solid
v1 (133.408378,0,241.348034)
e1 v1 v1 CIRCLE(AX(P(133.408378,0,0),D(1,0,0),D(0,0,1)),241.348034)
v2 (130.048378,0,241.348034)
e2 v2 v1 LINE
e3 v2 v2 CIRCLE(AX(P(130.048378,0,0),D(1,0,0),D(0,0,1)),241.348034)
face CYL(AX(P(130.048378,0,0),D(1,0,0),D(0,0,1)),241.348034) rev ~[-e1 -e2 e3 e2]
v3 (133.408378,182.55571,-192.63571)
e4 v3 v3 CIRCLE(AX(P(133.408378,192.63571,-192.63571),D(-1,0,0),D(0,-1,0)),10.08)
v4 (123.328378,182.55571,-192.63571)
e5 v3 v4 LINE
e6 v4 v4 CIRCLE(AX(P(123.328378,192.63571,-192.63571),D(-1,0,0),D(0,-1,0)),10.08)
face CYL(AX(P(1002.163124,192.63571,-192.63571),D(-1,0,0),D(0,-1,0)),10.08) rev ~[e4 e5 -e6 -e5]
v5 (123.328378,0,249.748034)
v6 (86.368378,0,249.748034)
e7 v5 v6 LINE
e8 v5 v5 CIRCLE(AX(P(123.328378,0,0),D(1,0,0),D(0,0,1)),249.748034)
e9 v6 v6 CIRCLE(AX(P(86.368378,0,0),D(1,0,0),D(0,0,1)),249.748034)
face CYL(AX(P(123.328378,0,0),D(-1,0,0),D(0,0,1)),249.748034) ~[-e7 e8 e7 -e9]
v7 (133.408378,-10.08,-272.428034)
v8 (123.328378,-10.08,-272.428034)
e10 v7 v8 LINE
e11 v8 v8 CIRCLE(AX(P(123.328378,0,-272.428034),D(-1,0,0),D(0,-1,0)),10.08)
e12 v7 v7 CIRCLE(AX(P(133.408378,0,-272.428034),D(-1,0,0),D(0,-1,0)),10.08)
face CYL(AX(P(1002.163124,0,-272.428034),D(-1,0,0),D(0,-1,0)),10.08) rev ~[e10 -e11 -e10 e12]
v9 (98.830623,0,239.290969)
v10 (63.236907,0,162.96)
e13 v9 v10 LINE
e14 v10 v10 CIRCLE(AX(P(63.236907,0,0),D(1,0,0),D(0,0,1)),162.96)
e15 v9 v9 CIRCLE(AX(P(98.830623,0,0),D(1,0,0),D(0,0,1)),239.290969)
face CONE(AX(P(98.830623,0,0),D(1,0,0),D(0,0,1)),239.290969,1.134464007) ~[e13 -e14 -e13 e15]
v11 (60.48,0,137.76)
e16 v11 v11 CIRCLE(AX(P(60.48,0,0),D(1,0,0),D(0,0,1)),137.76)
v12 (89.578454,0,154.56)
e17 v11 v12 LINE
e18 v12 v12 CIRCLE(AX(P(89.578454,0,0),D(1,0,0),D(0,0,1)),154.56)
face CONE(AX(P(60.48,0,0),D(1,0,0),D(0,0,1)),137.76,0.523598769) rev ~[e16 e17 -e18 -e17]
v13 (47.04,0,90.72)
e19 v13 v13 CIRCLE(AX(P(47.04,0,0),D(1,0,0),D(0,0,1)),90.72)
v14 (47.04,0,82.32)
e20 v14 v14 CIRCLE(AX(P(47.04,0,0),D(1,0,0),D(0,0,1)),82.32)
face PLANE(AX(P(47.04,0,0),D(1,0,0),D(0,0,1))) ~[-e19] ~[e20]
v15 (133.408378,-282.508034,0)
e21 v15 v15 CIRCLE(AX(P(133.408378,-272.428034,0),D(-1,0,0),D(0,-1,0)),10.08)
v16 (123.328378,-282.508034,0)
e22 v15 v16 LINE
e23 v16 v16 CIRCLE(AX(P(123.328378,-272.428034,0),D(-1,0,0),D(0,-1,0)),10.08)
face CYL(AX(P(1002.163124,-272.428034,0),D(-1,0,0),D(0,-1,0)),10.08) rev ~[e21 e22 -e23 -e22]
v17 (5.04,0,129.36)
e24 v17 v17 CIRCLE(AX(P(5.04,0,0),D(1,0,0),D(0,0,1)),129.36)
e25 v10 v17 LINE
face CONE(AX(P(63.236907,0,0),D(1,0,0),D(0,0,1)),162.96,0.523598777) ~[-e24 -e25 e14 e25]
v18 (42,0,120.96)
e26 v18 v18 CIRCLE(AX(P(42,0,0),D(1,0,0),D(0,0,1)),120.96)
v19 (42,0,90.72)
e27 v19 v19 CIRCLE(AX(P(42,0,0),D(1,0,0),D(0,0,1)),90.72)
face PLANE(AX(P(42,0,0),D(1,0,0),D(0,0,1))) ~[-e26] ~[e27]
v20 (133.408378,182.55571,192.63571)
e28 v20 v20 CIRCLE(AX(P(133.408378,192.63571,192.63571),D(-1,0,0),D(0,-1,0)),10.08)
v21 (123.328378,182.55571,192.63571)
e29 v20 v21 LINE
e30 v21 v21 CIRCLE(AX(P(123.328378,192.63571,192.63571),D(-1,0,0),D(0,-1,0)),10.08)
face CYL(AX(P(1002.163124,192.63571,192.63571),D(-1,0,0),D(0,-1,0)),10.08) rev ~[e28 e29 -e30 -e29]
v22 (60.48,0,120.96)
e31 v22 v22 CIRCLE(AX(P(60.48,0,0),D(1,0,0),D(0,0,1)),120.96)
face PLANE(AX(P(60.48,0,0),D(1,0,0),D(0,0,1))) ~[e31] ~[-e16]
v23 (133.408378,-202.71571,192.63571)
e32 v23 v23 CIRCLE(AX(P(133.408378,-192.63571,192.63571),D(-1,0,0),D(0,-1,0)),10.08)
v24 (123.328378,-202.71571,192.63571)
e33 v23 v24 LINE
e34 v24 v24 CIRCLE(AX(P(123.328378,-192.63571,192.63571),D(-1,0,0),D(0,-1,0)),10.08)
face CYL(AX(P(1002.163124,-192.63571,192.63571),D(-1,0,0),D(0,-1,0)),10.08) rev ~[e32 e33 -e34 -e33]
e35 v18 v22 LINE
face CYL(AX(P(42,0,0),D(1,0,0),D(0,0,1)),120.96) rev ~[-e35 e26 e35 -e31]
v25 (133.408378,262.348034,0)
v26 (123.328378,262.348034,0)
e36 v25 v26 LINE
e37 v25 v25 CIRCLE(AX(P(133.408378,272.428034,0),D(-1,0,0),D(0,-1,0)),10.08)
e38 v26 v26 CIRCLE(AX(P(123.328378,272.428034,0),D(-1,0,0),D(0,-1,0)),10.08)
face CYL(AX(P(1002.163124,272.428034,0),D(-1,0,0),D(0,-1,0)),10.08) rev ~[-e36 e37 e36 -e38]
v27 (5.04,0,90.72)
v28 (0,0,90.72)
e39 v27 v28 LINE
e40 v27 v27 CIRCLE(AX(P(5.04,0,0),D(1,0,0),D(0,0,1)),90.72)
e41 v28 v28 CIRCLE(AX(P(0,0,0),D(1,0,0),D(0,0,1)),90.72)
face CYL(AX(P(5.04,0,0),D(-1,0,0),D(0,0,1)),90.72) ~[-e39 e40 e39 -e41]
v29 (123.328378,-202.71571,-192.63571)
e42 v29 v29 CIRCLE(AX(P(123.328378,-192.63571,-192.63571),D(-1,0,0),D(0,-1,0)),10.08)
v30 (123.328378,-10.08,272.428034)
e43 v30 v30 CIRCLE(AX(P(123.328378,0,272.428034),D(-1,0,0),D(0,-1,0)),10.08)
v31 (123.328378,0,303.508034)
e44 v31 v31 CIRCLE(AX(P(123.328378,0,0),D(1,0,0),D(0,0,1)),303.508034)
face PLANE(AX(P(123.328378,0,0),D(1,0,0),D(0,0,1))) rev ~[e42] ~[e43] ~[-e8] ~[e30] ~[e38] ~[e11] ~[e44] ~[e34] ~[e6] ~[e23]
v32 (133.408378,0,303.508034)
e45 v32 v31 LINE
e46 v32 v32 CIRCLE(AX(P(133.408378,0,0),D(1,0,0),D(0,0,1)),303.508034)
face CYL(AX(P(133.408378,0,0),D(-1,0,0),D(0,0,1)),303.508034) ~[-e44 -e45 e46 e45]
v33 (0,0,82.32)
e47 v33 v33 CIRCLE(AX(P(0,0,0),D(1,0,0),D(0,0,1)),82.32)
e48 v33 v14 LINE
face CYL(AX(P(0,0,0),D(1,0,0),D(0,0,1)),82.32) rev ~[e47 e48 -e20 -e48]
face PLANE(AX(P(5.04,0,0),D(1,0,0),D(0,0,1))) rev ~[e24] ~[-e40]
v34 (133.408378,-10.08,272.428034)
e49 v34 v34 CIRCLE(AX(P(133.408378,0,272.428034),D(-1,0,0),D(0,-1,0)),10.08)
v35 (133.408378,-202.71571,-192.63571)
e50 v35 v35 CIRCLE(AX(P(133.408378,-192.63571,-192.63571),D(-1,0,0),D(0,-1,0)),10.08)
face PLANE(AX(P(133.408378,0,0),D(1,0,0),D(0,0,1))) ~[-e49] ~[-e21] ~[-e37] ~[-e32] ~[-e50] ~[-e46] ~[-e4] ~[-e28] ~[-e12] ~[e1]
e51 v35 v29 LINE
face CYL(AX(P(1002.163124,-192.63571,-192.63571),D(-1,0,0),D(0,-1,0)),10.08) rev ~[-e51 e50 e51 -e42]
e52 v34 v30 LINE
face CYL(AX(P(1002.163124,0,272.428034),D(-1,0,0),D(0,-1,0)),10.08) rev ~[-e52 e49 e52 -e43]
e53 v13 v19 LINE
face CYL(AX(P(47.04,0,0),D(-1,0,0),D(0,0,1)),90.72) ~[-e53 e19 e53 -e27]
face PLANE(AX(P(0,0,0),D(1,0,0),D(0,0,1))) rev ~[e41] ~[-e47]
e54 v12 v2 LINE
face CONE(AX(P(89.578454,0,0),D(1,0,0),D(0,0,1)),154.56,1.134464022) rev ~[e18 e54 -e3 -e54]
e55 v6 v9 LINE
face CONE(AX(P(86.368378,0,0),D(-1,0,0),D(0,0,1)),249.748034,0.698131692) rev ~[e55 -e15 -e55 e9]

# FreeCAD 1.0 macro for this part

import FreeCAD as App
import Part
import Sketcher
Q = App.Units.Quantity


def add_polygon(sketch, points):
    """Adds a closed chain of lines whose ends are joined by coincident constraints."""
    first, n = sketch.GeometryCount, len(points)
    for a, b in zip(points, points[1:] + points[:1]):
        sketch.addGeometry(Part.LineSegment(App.Vector(*a, 0), App.Vector(*b, 0)), False)
    for i in range(n):
        sketch.addConstraint(Sketcher.Constraint("Coincident", first + i, 2, first + (i + 1) % n, 1))

doc = App.newDocument("Part")
body = doc.addObject("PartDesign::Body", "Body")

# Sketch on XZ plane
sketch1 = doc.addObject("Sketcher::SketchObject", "Sketch")
body.addObject(sketch1)
sketch1.AttachmentSupport = (doc.XZ_Plane, [""])
sketch1.MapMode = "FlatFace"
add_polygon(sketch1, [(0, 90.7), (0, 82.3), (47, 82.3), (47, 90.7), (42, 90.7), (42, 121), (60.5, 121), (60.5, 137.8), (89.6, 154.6), (130, 241.3), (133.4, 241.3), (133.4, 303.5), (123.3, 303.5), (123.3, 249.7), (86.4, 249.7), (98.8, 239.3), (63.2, 163), (5, 129.4), (5, 90.7)])  # lines 0-18
sketch1.addConstraint(Sketcher.Constraint("Vertical", 0))
sketch1.addConstraint(Sketcher.Constraint("Horizontal", 1))
sketch1.addConstraint(Sketcher.Constraint("Vertical", 2))
sketch1.addConstraint(Sketcher.Constraint("Horizontal", 3))
sketch1.addConstraint(Sketcher.Constraint("Vertical", 4))
sketch1.addConstraint(Sketcher.Constraint("Horizontal", 5))
sketch1.addConstraint(Sketcher.Constraint("Vertical", 6))
sketch1.addConstraint(Sketcher.Constraint("Horizontal", 9))
sketch1.addConstraint(Sketcher.Constraint("Vertical", 10))
sketch1.addConstraint(Sketcher.Constraint("Horizontal", 11))
sketch1.addConstraint(Sketcher.Constraint("Vertical", 12))
sketch1.addConstraint(Sketcher.Constraint("Horizontal", 13))
sketch1.addConstraint(Sketcher.Constraint("Vertical", 17))
sketch1.addConstraint(Sketcher.Constraint("Horizontal", 18))
sketch1.addConstraint(Sketcher.Constraint("PointOnObject", 0, 2, -2))
sketch1.addConstraint(Sketcher.Constraint("Parallel", 8, 15))
sketch1.addConstraint(Sketcher.Constraint("Parallel", 7, 16))
sketch1.addConstraint(Sketcher.Constraint("Horizontal", 3, 2, 17, 2))
sketch1.addConstraint(Sketcher.Constraint("Equal", 3, 18))
sketch1.addConstraint(Sketcher.Constraint("Angle", 7, Q("30 deg")))
sketch1.addConstraint(Sketcher.Constraint("Angle", 8, Q("65 deg")))
sketch1.addConstraint(Sketcher.Constraint("Angle", 14, Q("-40 deg")))
sketch1.addConstraint(Sketcher.Constraint("DistanceY", 0, 2, 0, 1, Q("8.4 mm")))
sketch1.addConstraint(Sketcher.Constraint("DistanceY", 6, 1, 6, 2, Q("16.8 mm")))
sketch1.addConstraint(Sketcher.Constraint("DistanceX", -1, 1, 3, 2, Q("42 mm")))
sketch1.addConstraint(Sketcher.Constraint("DistanceY", 5, 2, 15, 2, Q("42 mm")))
sketch1.addConstraint(Sketcher.Constraint("Distance", 7, Q("33.6 mm")))
sketch1.addConstraint(Sketcher.Constraint("Distance", 16, Q("67.2 mm")))
sketch1.addConstraint(Sketcher.Constraint("DistanceX", 1, 1, 1, 2, Q("47.04 mm")))
sketch1.addConstraint(Sketcher.Constraint("DistanceX", 5, 1, 5, 2, Q("18.48 mm")))
sketch1.addConstraint(Sketcher.Constraint("DistanceX", 9, 1, 9, 2, Q("3.36 mm")))
sketch1.addConstraint(Sketcher.Constraint("DistanceX", 11, 2, 11, 1, Q("10.08 mm")))
sketch1.addConstraint(Sketcher.Constraint("DistanceX", 13, 2, 13, 1, Q("36.96 mm")))
sketch1.addConstraint(Sketcher.Constraint("DistanceY", 4, 1, 4, 2, Q("30.24 mm")))
sketch1.addConstraint(Sketcher.Constraint("DistanceY", 10, 1, 10, 2, Q("62.16 mm")))
sketch1.addConstraint(Sketcher.Constraint("DistanceY", 12, 2, 12, 1, Q("53.76 mm")))
sketch1.addConstraint(Sketcher.Constraint("Distance", 8, Q("95.76 mm")))
sketch1.addConstraint(Sketcher.Constraint("DistanceY", -1, 1, 0, 2, Q("82.32 mm")))
revolution = doc.addObject("PartDesign::Revolution", "Revolution")
body.addObject(revolution)
revolution.Profile = sketch1
revolution.ReferenceAxis = (sketch1, ["H_Axis"])
revolution.Angle = 360

# Sketch on YZ plane
sketch2 = doc.addObject("Sketcher::SketchObject", "Sketch001")
body.addObject(sketch2)
sketch2.AttachmentSupport = (doc.YZ_Plane, [""])
sketch2.MapMode = "FlatFace"
sketch2.AttachmentOffset = App.Placement(App.Vector(0, 0, 133.408378), App.Rotation())
sketch2.addGeometry(Part.Circle(App.Vector(0, 272, 0), App.Vector(0, 0, 1), 10), False)
sketch2.addGeometry(Part.Circle(App.Vector(-193, 193, 0), App.Vector(0, 0, 1), 10), False)
sketch2.addGeometry(Part.Circle(App.Vector(-272, 0, 0), App.Vector(0, 0, 1), 10), False)
sketch2.addGeometry(Part.Circle(App.Vector(193, 193, 0), App.Vector(0, 0, 1), 10), False)
sketch2.addGeometry(Part.Circle(App.Vector(272, 0, 0), App.Vector(0, 0, 1), 10), False)
sketch2.addGeometry(Part.Circle(App.Vector(-193, -193, 0), App.Vector(0, 0, 1), 10), False)
sketch2.addGeometry(Part.Circle(App.Vector(0, -272, 0), App.Vector(0, 0, 1), 10), False)
sketch2.addGeometry(Part.Circle(App.Vector(193, -193, 0), App.Vector(0, 0, 1), 10), False)
sketch2.addConstraint(Sketcher.Constraint("Equal", 0, 1))
sketch2.addConstraint(Sketcher.Constraint("Equal", 1, 2))
sketch2.addConstraint(Sketcher.Constraint("Equal", 2, 3))
sketch2.addConstraint(Sketcher.Constraint("Equal", 3, 4))
sketch2.addConstraint(Sketcher.Constraint("Equal", 4, 5))
sketch2.addConstraint(Sketcher.Constraint("Equal", 5, 6))
sketch2.addConstraint(Sketcher.Constraint("Equal", 6, 7))
sketch2.addConstraint(Sketcher.Constraint("Symmetric", 2, 3, 4, 3, -1, 1))
sketch2.addConstraint(Sketcher.Constraint("Symmetric", 3, 3, 5, 3, -1, 1))
sketch2.addConstraint(Sketcher.Constraint("Symmetric", 0, 3, 6, 3, -1, 1))
sketch2.addConstraint(Sketcher.Constraint("Symmetric", 1, 3, 7, 3, -1, 1))
sketch2.addConstraint(Sketcher.Constraint("Symmetric", 1, 3, 3, 3, -2))
sketch2.addConstraint(Sketcher.Constraint("PointOnObject", 0, 3, -2))
sketch2.addConstraint(Sketcher.Constraint("PointOnObject", 2, 3, -1))
sketch2.addConstraint(Sketcher.Constraint("Diameter", 0, Q("20.16 mm")))
sketch2.addConstraint(Sketcher.Constraint("DistanceX", 1, 3, -1, 1, Q("192.63571 mm")))
sketch2.addConstraint(Sketcher.Constraint("DistanceY", -1, 1, 1, 3, Q("192.63571 mm")))
sketch2.addConstraint(Sketcher.Constraint("DistanceX", 2, 3, 4, 3, Q("544.856068 mm")))
sketch2.addConstraint(Sketcher.Constraint("DistanceY", -1, 1, 0, 3, Q("272.428034 mm")))
doc.recompute()
hole = doc.addObject("PartDesign::Hole", "Hole")
body.addObject(hole)
hole.Profile = sketch2
hole.ThreadType = "None"
hole.Diameter = 20.16
hole.DepthType = "ThroughAll"

doc.recompute()
